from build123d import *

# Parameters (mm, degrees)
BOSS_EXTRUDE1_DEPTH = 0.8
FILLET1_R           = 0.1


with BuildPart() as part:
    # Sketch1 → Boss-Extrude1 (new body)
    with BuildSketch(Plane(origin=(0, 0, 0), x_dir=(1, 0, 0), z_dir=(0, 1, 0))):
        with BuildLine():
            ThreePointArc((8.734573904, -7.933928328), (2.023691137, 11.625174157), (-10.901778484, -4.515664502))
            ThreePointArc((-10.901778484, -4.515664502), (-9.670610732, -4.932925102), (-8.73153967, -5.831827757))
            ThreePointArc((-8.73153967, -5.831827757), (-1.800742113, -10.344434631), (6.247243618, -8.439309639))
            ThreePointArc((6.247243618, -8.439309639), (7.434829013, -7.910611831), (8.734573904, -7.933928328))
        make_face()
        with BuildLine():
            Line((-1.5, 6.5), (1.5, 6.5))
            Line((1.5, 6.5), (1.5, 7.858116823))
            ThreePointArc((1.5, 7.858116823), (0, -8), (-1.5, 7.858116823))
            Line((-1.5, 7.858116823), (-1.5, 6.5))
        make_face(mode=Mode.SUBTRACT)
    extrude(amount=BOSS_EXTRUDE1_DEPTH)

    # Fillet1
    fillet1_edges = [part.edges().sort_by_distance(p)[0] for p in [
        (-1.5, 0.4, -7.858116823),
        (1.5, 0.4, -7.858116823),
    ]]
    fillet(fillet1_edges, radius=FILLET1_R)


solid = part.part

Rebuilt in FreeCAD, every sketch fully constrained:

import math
import FreeCAD as App
import Part
import Sketcher
from FreeCAD import Vector


def edges_at(feature, points):
    """Names of the edges that pass closest to the given points."""
    edges = feature.Shape.Edges
    near = lambda p: min(range(len(edges)), key=lambda i: edges[i].distToShape(Part.Vertex(*p))[0])
    return sorted({f"Edge{near(p) + 1}" for p in points})

doc = App.newDocument("Part")
params = doc.addObject("Spreadsheet::Sheet", "Params")
for row, (alias, value) in enumerate([
    ("sketch1_radius", "3 mm"),
    ("sketch1_radius2", "8 mm"),
    ("sketch1_radius3", "11.8 mm"),
    ("sketch1_radius4", "10.5 mm"),
    ("sketch1_width", "3 mm"),
    ("pad1_length", "0.8 mm"),
    ("fillet_radius", "0.1 mm"),
], start=1):
    params.set(f"A{row}", alias)
    params.set(f"B{row}", "=" + value)
    params.setAlias(f"B{row}", alias)

body = doc.addObject("PartDesign::Body", "Body")

# Sketch on XZ plane
sketch1 = doc.addObject("Sketcher::SketchObject", "Sketch")
body.addObject(sketch1)
sketch1.AttachmentSupport = (doc.XZ_Plane, [""])
sketch1.MapMode = "FlatFace"
sketch1.addGeometry([
    Part.ArcOfCircle(Part.Circle(Vector(0, 0, 0), Vector(0, 0, 1), 11.8), math.radians(158), math.radians(402)),  # 0
    Part.ArcOfCircle(Part.Circle(Vector(-11.2, 7.5, 0), Vector(0, 0, 1), 3), math.radians(-84), math.radians(-34)),  # 1
    Part.ArcOfCircle(Part.Circle(Vector(0, 0, 0), Vector(0, 0, 1), 10.5), math.radians(53), math.radians(146)),  # 2
    Part.ArcOfCircle(Part.Circle(Vector(8, 10.9, 0), Vector(0, 0, 1), 3), math.radians(-127), math.radians(-76)),  # 3
    Part.LineSegment(Vector(-1.5, -7.9, 0), Vector(-1.5, -6.5, 0)),  # 4
    Part.LineSegment(Vector(-1.5, -6.5, 0), Vector(1.5, -6.5, 0)),  # 5
    Part.LineSegment(Vector(1.5, -6.5, 0), Vector(1.5, -7.9, 0)),  # 6
    Part.ArcOfCircle(Part.Circle(Vector(0, 0, 0), Vector(0, 0, 1), 8), math.radians(-79), math.radians(259)),  # 7
], False)
sketch1.addConstraint([
    Sketcher.Constraint("Coincident", 0, 1, 1, 1),
    Sketcher.Constraint("Tangent", 1, 2, 2, 2),
    Sketcher.Constraint("Tangent", 2, 1, 3, 1),
    Sketcher.Constraint("Coincident", 3, 2, 0, 2),
    Sketcher.Constraint("Coincident", 4, 2, 5, 1),
    Sketcher.Constraint("Coincident", 5, 2, 6, 1),
    Sketcher.Constraint("Coincident", 6, 2, 7, 1),
    Sketcher.Constraint("Coincident", 7, 2, 4, 1),
    Sketcher.Constraint("Vertical", 4),
    Sketcher.Constraint("Horizontal", 5),
    Sketcher.Constraint("Vertical", 6),
    Sketcher.Constraint("Coincident", 0, 3, -1, 1),
    Sketcher.Constraint("Coincident", 2, 3, -1, 1),
    Sketcher.Constraint("Coincident", 7, 3, -1, 1),
    Sketcher.Constraint("Equal", 1, 3),
    Sketcher.Constraint("Horizontal", 6, 2, 7, 2),
    Sketcher.Constraint("Radius", 1, 3.0),
    Sketcher.Constraint("Radius", 7, 8.0),
    Sketcher.Constraint("Radius", 0, 11.8),
    Sketcher.Constraint("Radius", 2, 10.5),
    Sketcher.Constraint("DistanceX", 5, 1, 5, 2, 3.0),
    Sketcher.Constraint("DistanceY", 4, 2, -1, 1, 6.5),
    Sketcher.Constraint("DistanceY", 0, 1, 1, 3, 2.9824),
    Sketcher.Constraint("DistanceX", -1, 1, 3, 3, 8.03217),
])
sketch1.setExpression("Constraints[16]", "Params.sketch1_radius")
sketch1.setExpression("Constraints[17]", "Params.sketch1_radius2")
sketch1.setExpression("Constraints[18]", "Params.sketch1_radius3")
sketch1.setExpression("Constraints[19]", "Params.sketch1_radius4")
sketch1.setExpression("Constraints[20]", "Params.sketch1_width")
pad1 = doc.addObject("PartDesign::Pad", "Pad")
body.addObject(pad1)
pad1.Profile = sketch1
pad1.setExpression("Length", "Params.pad1_length")
pad1.Reversed = True
doc.recompute()

fillet = doc.addObject("PartDesign::Fillet", "Fillet")
body.addObject(fillet)
fillet.Base = (pad1, edges_at(pad1, [(-1.5, 0.4, -7.858), (1.5, 0.4, -7.858)]))
fillet.setExpression("Radius", "Params.fillet_radius")

doc.recompute()
